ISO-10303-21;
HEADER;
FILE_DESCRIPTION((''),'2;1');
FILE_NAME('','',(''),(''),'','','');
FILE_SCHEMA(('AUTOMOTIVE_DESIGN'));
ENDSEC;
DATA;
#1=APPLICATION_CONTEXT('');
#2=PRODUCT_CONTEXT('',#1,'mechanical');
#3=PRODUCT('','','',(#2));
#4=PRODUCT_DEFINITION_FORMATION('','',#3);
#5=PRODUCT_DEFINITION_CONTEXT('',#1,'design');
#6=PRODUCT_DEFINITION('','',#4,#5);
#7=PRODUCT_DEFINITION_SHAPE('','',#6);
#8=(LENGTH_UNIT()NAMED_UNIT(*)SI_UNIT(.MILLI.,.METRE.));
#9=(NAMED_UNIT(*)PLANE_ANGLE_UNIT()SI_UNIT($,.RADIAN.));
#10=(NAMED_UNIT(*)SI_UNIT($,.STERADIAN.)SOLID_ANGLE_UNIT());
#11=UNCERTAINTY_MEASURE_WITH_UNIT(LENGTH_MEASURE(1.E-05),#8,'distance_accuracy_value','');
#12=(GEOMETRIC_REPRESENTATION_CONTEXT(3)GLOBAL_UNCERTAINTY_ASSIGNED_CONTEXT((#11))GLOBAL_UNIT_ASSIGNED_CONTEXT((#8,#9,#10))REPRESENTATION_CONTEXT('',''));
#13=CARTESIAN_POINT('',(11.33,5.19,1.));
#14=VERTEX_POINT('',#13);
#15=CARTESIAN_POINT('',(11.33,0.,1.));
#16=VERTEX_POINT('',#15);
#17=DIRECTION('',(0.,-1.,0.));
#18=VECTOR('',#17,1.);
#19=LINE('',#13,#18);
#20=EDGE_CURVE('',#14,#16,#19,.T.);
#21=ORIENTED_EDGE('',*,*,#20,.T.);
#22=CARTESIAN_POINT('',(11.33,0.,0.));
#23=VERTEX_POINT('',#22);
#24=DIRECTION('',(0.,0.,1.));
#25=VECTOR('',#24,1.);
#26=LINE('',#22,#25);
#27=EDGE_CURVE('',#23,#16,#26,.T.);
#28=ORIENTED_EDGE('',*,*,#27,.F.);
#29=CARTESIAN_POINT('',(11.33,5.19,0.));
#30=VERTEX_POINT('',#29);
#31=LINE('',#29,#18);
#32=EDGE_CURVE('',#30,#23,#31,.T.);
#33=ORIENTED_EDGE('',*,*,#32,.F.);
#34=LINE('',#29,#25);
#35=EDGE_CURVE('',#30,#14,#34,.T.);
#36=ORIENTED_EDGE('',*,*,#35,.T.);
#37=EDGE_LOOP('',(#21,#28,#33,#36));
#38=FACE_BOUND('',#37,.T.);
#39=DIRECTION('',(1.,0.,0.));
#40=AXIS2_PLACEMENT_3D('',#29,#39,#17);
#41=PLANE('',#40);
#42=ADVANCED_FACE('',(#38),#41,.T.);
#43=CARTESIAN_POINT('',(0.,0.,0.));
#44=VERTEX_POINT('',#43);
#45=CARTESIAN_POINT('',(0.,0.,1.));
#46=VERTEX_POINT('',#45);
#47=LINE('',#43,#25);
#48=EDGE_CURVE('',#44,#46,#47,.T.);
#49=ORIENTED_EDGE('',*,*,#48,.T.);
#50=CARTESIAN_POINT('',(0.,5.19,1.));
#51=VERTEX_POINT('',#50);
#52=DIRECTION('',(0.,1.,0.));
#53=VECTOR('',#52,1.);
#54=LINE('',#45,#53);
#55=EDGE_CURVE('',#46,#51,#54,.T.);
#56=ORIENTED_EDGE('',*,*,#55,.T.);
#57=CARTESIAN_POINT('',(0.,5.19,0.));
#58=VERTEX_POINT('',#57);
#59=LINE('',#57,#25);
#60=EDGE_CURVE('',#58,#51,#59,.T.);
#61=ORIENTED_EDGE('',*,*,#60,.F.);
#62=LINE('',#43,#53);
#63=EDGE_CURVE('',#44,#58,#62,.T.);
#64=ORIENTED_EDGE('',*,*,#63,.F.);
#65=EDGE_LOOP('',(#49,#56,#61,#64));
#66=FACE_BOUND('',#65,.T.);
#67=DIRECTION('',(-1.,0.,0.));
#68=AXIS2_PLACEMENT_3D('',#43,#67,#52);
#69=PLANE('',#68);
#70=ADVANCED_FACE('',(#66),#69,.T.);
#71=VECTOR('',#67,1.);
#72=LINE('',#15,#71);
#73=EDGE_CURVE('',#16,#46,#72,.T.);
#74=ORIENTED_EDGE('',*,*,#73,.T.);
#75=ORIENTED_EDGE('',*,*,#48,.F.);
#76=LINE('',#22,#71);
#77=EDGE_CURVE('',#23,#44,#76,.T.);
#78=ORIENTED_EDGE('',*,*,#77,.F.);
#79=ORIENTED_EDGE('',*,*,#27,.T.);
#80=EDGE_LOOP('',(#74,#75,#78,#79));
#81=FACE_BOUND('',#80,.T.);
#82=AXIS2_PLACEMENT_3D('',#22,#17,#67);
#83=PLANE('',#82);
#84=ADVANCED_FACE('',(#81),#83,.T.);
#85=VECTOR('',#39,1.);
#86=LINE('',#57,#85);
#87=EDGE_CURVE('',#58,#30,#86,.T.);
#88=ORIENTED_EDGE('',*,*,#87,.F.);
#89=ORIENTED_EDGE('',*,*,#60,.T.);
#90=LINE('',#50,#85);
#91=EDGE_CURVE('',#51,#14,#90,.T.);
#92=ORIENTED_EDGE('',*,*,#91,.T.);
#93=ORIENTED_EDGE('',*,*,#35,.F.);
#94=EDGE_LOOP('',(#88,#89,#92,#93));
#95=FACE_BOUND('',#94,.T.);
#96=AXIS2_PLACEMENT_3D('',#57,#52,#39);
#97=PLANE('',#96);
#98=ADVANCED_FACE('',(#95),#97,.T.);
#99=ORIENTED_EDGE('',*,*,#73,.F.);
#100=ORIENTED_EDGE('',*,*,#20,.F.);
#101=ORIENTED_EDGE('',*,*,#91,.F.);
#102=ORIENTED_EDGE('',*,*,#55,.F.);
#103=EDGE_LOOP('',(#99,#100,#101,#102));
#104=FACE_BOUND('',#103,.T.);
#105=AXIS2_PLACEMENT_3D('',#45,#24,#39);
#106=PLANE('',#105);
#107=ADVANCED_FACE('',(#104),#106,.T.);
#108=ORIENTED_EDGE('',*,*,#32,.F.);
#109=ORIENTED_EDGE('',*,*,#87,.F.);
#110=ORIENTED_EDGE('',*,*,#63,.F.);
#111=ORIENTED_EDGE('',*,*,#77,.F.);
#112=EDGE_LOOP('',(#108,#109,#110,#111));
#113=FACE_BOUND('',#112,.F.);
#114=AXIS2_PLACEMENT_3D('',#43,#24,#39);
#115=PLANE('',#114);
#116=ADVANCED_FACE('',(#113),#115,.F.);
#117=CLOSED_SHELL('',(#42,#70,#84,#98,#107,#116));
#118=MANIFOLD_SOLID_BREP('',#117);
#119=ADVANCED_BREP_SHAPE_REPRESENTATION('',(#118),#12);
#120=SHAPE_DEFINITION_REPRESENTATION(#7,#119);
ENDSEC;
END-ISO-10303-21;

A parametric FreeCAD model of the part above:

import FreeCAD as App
import Part
import Sketcher

V = App.Vector

doc = App.newDocument("Part")
body = doc.addObject("PartDesign::Body", "Body")

# Sketch on XY plane
sketch1 = doc.addObject("Sketcher::SketchObject", "Sketch")
body.addObject(sketch1)
sketch1.AttachmentSupport = (doc.XY_Plane, [""])
sketch1.MapMode = "FlatFace"
sketch1.addGeometry(Part.LineSegment(V(11, 5, 0), V(0, 5, 0)), False)
sketch1.addGeometry(Part.LineSegment(V(0, 5, 0), V(0, 0, 0)), False)
sketch1.addGeometry(Part.LineSegment(V(0, 0, 0), V(11, 0, 0)), False)
sketch1.addGeometry(Part.LineSegment(V(11, 0, 0), V(11, 5, 0)), False)
sketch1.addConstraint(Sketcher.Constraint("Coincident", 0, 2, 1, 1))
sketch1.addConstraint(Sketcher.Constraint("Coincident", 1, 2, 2, 1))
sketch1.addConstraint(Sketcher.Constraint("Coincident", 2, 2, 3, 1))
sketch1.addConstraint(Sketcher.Constraint("Coincident", 3, 2, 0, 1))
sketch1.addConstraint(Sketcher.Constraint("Horizontal", 0))
sketch1.addConstraint(Sketcher.Constraint("Vertical", 1))
sketch1.addConstraint(Sketcher.Constraint("Horizontal", 2))
sketch1.addConstraint(Sketcher.Constraint("Vertical", 3))
sketch1.addConstraint(Sketcher.Constraint("Coincident", 1, 2, -1, 1))
sketch1.addConstraint(Sketcher.Constraint("DistanceX", 0, 2, 0, 1, 11.33))
sketch1.addConstraint(Sketcher.Constraint("DistanceY", 1, 2, 1, 1, 5.19))
pad1 = doc.addObject("PartDesign::Pad", "Pad")
body.addObject(pad1)
pad1.Profile = sketch1
pad1.Length = 1

doc.recompute()
